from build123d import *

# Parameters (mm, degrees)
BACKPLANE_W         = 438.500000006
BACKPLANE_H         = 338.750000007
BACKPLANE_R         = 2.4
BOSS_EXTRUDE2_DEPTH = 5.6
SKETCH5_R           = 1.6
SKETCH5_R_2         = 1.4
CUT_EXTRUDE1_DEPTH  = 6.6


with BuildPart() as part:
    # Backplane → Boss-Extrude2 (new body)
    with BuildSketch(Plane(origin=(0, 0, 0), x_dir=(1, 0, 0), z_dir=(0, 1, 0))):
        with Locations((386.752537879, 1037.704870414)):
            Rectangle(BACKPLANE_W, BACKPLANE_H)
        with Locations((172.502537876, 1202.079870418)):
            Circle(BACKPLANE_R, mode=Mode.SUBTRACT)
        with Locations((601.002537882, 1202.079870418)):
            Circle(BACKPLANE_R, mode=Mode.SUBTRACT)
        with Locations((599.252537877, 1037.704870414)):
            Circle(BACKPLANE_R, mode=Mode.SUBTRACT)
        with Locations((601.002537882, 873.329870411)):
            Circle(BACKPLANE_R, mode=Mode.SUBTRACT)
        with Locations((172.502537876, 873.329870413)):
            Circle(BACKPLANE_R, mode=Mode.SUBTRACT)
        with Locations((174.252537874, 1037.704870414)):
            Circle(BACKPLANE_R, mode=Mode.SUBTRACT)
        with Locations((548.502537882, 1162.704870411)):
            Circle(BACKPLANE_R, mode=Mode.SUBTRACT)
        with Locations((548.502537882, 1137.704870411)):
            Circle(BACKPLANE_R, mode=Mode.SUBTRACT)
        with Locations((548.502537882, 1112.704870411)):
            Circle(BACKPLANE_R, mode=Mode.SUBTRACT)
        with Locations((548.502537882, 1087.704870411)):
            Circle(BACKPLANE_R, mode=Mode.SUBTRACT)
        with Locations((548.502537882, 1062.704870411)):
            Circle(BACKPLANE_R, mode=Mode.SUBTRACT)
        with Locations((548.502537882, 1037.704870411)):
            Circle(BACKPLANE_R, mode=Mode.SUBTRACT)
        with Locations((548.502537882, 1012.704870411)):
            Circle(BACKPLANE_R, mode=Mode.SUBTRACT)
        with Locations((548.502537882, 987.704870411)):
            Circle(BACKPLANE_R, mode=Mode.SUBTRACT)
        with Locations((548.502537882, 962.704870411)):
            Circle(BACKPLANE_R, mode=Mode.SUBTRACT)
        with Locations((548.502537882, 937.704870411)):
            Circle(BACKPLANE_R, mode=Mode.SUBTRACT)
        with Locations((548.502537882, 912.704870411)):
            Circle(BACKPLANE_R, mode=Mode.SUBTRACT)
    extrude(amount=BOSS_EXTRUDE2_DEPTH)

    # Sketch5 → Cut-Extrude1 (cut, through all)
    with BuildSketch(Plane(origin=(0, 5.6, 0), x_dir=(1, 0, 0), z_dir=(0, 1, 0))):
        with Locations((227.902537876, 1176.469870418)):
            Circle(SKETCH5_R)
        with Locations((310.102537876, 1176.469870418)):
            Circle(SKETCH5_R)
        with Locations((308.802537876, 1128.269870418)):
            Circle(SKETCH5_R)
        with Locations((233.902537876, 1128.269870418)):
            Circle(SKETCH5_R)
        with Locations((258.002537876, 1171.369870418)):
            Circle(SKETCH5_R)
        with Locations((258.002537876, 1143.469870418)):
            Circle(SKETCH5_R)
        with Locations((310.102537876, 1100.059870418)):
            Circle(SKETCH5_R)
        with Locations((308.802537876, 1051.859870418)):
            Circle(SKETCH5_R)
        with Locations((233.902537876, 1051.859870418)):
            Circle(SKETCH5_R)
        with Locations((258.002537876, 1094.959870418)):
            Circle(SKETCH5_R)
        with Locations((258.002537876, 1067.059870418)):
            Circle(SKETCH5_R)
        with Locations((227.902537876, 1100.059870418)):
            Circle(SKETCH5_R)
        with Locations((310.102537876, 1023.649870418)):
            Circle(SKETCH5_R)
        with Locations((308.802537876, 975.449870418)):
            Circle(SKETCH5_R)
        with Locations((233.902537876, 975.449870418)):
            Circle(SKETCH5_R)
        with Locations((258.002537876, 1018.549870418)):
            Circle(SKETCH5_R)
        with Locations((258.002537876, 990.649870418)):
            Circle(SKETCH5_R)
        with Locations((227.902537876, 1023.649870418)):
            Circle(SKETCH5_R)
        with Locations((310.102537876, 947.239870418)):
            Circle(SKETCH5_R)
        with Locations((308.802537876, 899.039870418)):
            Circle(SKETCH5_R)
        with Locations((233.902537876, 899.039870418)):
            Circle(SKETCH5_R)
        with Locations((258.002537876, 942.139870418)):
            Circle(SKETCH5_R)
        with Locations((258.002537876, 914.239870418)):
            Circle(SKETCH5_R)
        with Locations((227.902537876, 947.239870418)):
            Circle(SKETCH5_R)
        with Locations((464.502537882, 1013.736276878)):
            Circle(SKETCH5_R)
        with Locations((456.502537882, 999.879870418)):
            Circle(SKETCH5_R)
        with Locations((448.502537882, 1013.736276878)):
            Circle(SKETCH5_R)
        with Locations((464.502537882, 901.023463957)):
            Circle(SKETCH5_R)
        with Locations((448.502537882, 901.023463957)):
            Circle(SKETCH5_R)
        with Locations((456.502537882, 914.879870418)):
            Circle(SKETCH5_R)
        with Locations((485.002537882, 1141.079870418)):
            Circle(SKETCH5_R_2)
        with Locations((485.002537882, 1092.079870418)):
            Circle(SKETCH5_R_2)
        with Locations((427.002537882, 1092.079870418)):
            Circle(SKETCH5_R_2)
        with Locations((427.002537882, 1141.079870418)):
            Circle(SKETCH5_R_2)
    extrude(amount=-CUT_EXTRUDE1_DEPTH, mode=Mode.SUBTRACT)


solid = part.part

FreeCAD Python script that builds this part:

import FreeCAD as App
import Part
import Sketcher
from FreeCAD import Vector
Q = App.Units.Quantity

doc = App.newDocument("Part")
params = doc.addObject("Spreadsheet::Sheet", "Params")
for row, (alias, value) in enumerate([
    ("sketch1_diameter", "4.8 mm"),
    ("sketch1_width", "438.5 mm"),
    ("sketch1_height", "338.75 mm"),
    ("pad1_length", "5.6 mm"),
    ("sketch2_diameter", "3.2 mm"),
    ("sketch2_diameter2", "2.8 mm"),
], start=1):
    params.set(f"A{row}", alias)
    params.set(f"B{row}", "=" + value)
    params.setAlias(f"B{row}", alias)

body = doc.addObject("PartDesign::Body", "Body")

# Sketch on XZ plane
sketch1 = doc.addObject("Sketcher::SketchObject", "Sketch")
body.addObject(sketch1)
sketch1.AttachmentSupport = (doc.XZ_Plane, [""])
sketch1.MapMode = "FlatFace"
sketch1.addGeometry(Part.LineSegment(Vector(167.502538, -1207.07987, 0), Vector(167.502538, -868.32987, 0)), False)
sketch1.addGeometry(Part.LineSegment(Vector(167.502538, -868.32987, 0), Vector(606.002538, -868.32987, 0)), False)
sketch1.addGeometry(Part.LineSegment(Vector(606.002538, -868.32987, 0), Vector(606.002538, -1207.07987, 0)), False)
sketch1.addGeometry(Part.LineSegment(Vector(606.002538, -1207.07987, 0), Vector(167.502538, -1207.07987, 0)), False)
sketch1.addGeometry(Part.Circle(Vector(172.502538, -873.32987, 0), Vector(0, 0, 1), 2.4), False)
sketch1.addGeometry(Part.Circle(Vector(174.252538, -1037.70487, 0), Vector(0, 0, 1), 2.4), False)
sketch1.addGeometry(Part.Circle(Vector(601.002538, -873.32987, 0), Vector(0, 0, 1), 2.4), False)
sketch1.addGeometry(Part.Circle(Vector(548.502538, -912.70487, 0), Vector(0, 0, 1), 2.4), False)
sketch1.addGeometry(Part.Circle(Vector(548.502538, -937.70487, 0), Vector(0, 0, 1), 2.4), False)
sketch1.addGeometry(Part.Circle(Vector(548.502538, -962.70487, 0), Vector(0, 0, 1), 2.4), False)
sketch1.addGeometry(Part.Circle(Vector(548.502538, -987.70487, 0), Vector(0, 0, 1), 2.4), False)
sketch1.addGeometry(Part.Circle(Vector(548.502538, -1012.70487, 0), Vector(0, 0, 1), 2.4), False)
sketch1.addGeometry(Part.Circle(Vector(548.502538, -1037.70487, 0), Vector(0, 0, 1), 2.4), False)
sketch1.addGeometry(Part.Circle(Vector(599.252538, -1037.70487, 0), Vector(0, 0, 1), 2.4), False)
sketch1.addGeometry(Part.Circle(Vector(172.502538, -1202.07987, 0), Vector(0, 0, 1), 2.4), False)
sketch1.addGeometry(Part.Circle(Vector(548.502538, -1062.70487, 0), Vector(0, 0, 1), 2.4), False)
sketch1.addGeometry(Part.Circle(Vector(548.502538, -1087.70487, 0), Vector(0, 0, 1), 2.4), False)
sketch1.addGeometry(Part.Circle(Vector(548.502538, -1112.70487, 0), Vector(0, 0, 1), 2.4), False)
sketch1.addGeometry(Part.Circle(Vector(548.502538, -1137.70487, 0), Vector(0, 0, 1), 2.4), False)
sketch1.addGeometry(Part.Circle(Vector(548.502538, -1162.70487, 0), Vector(0, 0, 1), 2.4), False)
sketch1.addGeometry(Part.Circle(Vector(601.002538, -1202.07987, 0), Vector(0, 0, 1), 2.4), False)
sketch1.addConstraint(Sketcher.Constraint("Coincident", 0, 2, 1, 1))
sketch1.addConstraint(Sketcher.Constraint("Coincident", 1, 2, 2, 1))
sketch1.addConstraint(Sketcher.Constraint("Coincident", 2, 2, 3, 1))
sketch1.addConstraint(Sketcher.Constraint("Coincident", 3, 2, 0, 1))
sketch1.addConstraint(Sketcher.Constraint("Vertical", 0))
sketch1.addConstraint(Sketcher.Constraint("Horizontal", 1))
sketch1.addConstraint(Sketcher.Constraint("Vertical", 2))
sketch1.addConstraint(Sketcher.Constraint("Horizontal", 3))
sketch1.addConstraint(Sketcher.Constraint("Equal", 4, 5))
sketch1.addConstraint(Sketcher.Constraint("Equal", 5, 6))
sketch1.addConstraint(Sketcher.Constraint("Equal", 6, 7))
sketch1.addConstraint(Sketcher.Constraint("Equal", 7, 8))
sketch1.addConstraint(Sketcher.Constraint("Equal", 8, 9))
sketch1.addConstraint(Sketcher.Constraint("Equal", 9, 10))
sketch1.addConstraint(Sketcher.Constraint("Equal", 10, 11))
sketch1.addConstraint(Sketcher.Constraint("Equal", 11, 12))
sketch1.addConstraint(Sketcher.Constraint("Equal", 12, 13))
sketch1.addConstraint(Sketcher.Constraint("Equal", 13, 14))
sketch1.addConstraint(Sketcher.Constraint("Equal", 14, 15))
sketch1.addConstraint(Sketcher.Constraint("Equal", 15, 16))
sketch1.addConstraint(Sketcher.Constraint("Equal", 16, 17))
sketch1.addConstraint(Sketcher.Constraint("Equal", 17, 18))
sketch1.addConstraint(Sketcher.Constraint("Equal", 18, 19))
sketch1.addConstraint(Sketcher.Constraint("Equal", 19, 20))
sketch1.addConstraint(Sketcher.Constraint("Horizontal", 4, 3, 6, 3))
sketch1.addConstraint(Sketcher.Constraint("Horizontal", 5, 3, 12, 3))
sketch1.addConstraint(Sketcher.Constraint("Horizontal", 12, 3, 13, 3))
sketch1.addConstraint(Sketcher.Constraint("Horizontal", 14, 3, 20, 3))
sketch1.addConstraint(Sketcher.Constraint("Vertical", 7, 3, 8, 3))
sketch1.addConstraint(Sketcher.Constraint("Vertical", 8, 3, 9, 3))
sketch1.addConstraint(Sketcher.Constraint("Vertical", 9, 3, 10, 3))
sketch1.addConstraint(Sketcher.Constraint("Vertical", 10, 3, 11, 3))
sketch1.addConstraint(Sketcher.Constraint("Vertical", 11, 3, 12, 3))
sketch1.addConstraint(Sketcher.Constraint("Vertical", 4, 3, 14, 3))
sketch1.addConstraint(Sketcher.Constraint("Vertical", 12, 3, 15, 3))
sketch1.addConstraint(Sketcher.Constraint("Vertical", 15, 3, 16, 3))
sketch1.addConstraint(Sketcher.Constraint("Vertical", 16, 3, 17, 3))
sketch1.addConstraint(Sketcher.Constraint("Vertical", 17, 3, 18, 3))
sketch1.addConstraint(Sketcher.Constraint("Vertical", 18, 3, 19, 3))
sketch1.addConstraint(Sketcher.Constraint("Vertical", 6, 3, 20, 3))
sketch1.addConstraint(Sketcher.Constraint("Diameter", 4, Q("4.8 mm")))
sketch1.addConstraint(Sketcher.Constraint("DistanceX", 1, 1, 1, 2, Q("438.5 mm")))
sketch1.addConstraint(Sketcher.Constraint("DistanceX", 4, 3, 7, 3, Q("376 mm")))
sketch1.addConstraint(Sketcher.Constraint("DistanceY", 5, 3, 7, 3, Q("125 mm")))
sketch1.addConstraint(Sketcher.Constraint("DistanceY", 8, 3, 7, 3, Q("25 mm")))
sketch1.addConstraint(Sketcher.Constraint("DistanceY", 9, 3, 8, 3, Q("25 mm")))
sketch1.addConstraint(Sketcher.Constraint("DistanceY", 10, 3, 9, 3, Q("25 mm")))
sketch1.addConstraint(Sketcher.Constraint("DistanceY", 11, 3, 10, 3, Q("25 mm")))
sketch1.addConstraint(Sketcher.Constraint("DistanceY", 15, 3, 12, 3, Q("25 mm")))
sketch1.addConstraint(Sketcher.Constraint("DistanceY", 16, 3, 15, 3, Q("25 mm")))
sketch1.addConstraint(Sketcher.Constraint("DistanceY", 17, 3, 16, 3, Q("25 mm")))
sketch1.addConstraint(Sketcher.Constraint("DistanceY", 18, 3, 17, 3, Q("25 mm")))
sketch1.addConstraint(Sketcher.Constraint("DistanceY", 19, 3, 18, 3, Q("25 mm")))
sketch1.addConstraint(Sketcher.Constraint("DistanceX", 0, 2, 4, 3, Q("5 mm")))
sketch1.addConstraint(Sketcher.Constraint("DistanceY", 4, 3, 0, 2, Q("5 mm")))
sketch1.addConstraint(Sketcher.Constraint("DistanceX", 6, 3, 1, 2, Q("5 mm")))
sketch1.addConstraint(Sketcher.Constraint("DistanceY", 2, 2, 20, 3, Q("5 mm")))
sketch1.addConstraint(Sketcher.Constraint("DistanceY", 0, 1, 0, 2, Q("338.75 mm")))
sketch1.addConstraint(Sketcher.Constraint("DistanceX", 4, 3, 5, 3, Q("1.75 mm")))
sketch1.addConstraint(Sketcher.Constraint("DistanceX", 12, 3, 13, 3, Q("50.75 mm")))
sketch1.addConstraint(Sketcher.Constraint("DistanceY", 5, 3, 4, 3, Q("164.375 mm")))
sketch1.addConstraint(Sketcher.Constraint("DistanceY", 4, 3, -1, 1, Q("873.32987 mm")))
sketch1.addConstraint(Sketcher.Constraint("DistanceX", -1, 1, 4, 3, Q("172.502538 mm")))
sketch1.setExpression("Constraints[40]", "Params.sketch1_diameter")
sketch1.setExpression("Constraints[41]", "Params.sketch1_width")
sketch1.setExpression("Constraints[57]", "Params.sketch1_height")
pad1 = doc.addObject("PartDesign::Pad", "Pad")
body.addObject(pad1)
pad1.Profile = sketch1
pad1.setExpression("Length", "Params.pad1_length")
pad1.Reversed = True

# Sketch on XZ plane
sketch2 = doc.addObject("Sketcher::SketchObject", "Sketch001")
body.addObject(sketch2)
sketch2.AttachmentSupport = (doc.XZ_Plane, [""])
sketch2.MapMode = "FlatFace"
sketch2.AttachmentOffset = App.Placement(Vector(0, 0, -5.6), App.Rotation())
sketch2.addGeometry(Part.Circle(Vector(227.902538, -1176.46987, 0), Vector(0, 0, 1), 1.6), False)
sketch2.addGeometry(Part.Circle(Vector(310.102538, -1176.46987, 0), Vector(0, 0, 1), 1.6), False)
sketch2.addGeometry(Part.Circle(Vector(308.802538, -1128.26987, 0), Vector(0, 0, 1), 1.6), False)
sketch2.addGeometry(Part.Circle(Vector(233.902538, -1128.26987, 0), Vector(0, 0, 1), 1.6), False)
sketch2.addGeometry(Part.Circle(Vector(258.002538, -1171.36987, 0), Vector(0, 0, 1), 1.6), False)
sketch2.addGeometry(Part.Circle(Vector(258.002538, -1143.46987, 0), Vector(0, 0, 1), 1.6), False)
sketch2.addGeometry(Part.Circle(Vector(310.102538, -1100.05987, 0), Vector(0, 0, 1), 1.6), False)
sketch2.addGeometry(Part.Circle(Vector(308.802538, -1051.85987, 0), Vector(0, 0, 1), 1.6), False)
sketch2.addGeometry(Part.Circle(Vector(233.902538, -1051.85987, 0), Vector(0, 0, 1), 1.6), False)
sketch2.addGeometry(Part.Circle(Vector(258.002538, -1094.95987, 0), Vector(0, 0, 1), 1.6), False)
sketch2.addGeometry(Part.Circle(Vector(258.002538, -1067.05987, 0), Vector(0, 0, 1), 1.6), False)
sketch2.addGeometry(Part.Circle(Vector(227.902538, -1100.05987, 0), Vector(0, 0, 1), 1.6), False)
sketch2.addGeometry(Part.Circle(Vector(310.102538, -1023.64987, 0), Vector(0, 0, 1), 1.6), False)
sketch2.addGeometry(Part.Circle(Vector(308.802538, -975.44987, 0), Vector(0, 0, 1), 1.6), False)
sketch2.addGeometry(Part.Circle(Vector(233.902538, -975.44987, 0), Vector(0, 0, 1), 1.6), False)
sketch2.addGeometry(Part.Circle(Vector(258.002538, -1018.54987, 0), Vector(0, 0, 1), 1.6), False)
sketch2.addGeometry(Part.Circle(Vector(258.002538, -990.64987, 0), Vector(0, 0, 1), 1.6), False)
sketch2.addGeometry(Part.Circle(Vector(227.902538, -1023.64987, 0), Vector(0, 0, 1), 1.6), False)
sketch2.addGeometry(Part.Circle(Vector(310.102538, -947.23987, 0), Vector(0, 0, 1), 1.6), False)
sketch2.addGeometry(Part.Circle(Vector(308.802538, -899.03987, 0), Vector(0, 0, 1), 1.6), False)
sketch2.addGeometry(Part.Circle(Vector(233.902538, -899.03987, 0), Vector(0, 0, 1), 1.6), False)
sketch2.addGeometry(Part.Circle(Vector(258.002538, -942.13987, 0), Vector(0, 0, 1), 1.6), False)
sketch2.addGeometry(Part.Circle(Vector(258.002538, -914.23987, 0), Vector(0, 0, 1), 1.6), False)
sketch2.addGeometry(Part.Circle(Vector(227.902538, -947.23987, 0), Vector(0, 0, 1), 1.6), False)
sketch2.addGeometry(Part.Circle(Vector(464.502538, -1013.736277, 0), Vector(0, 0, 1), 1.6), False)
sketch2.addGeometry(Part.Circle(Vector(456.502538, -999.87987, 0), Vector(0, 0, 1), 1.6), False)
sketch2.addGeometry(Part.Circle(Vector(448.502538, -1013.736277, 0), Vector(0, 0, 1), 1.6), False)
sketch2.addGeometry(Part.Circle(Vector(464.502538, -901.023464, 0), Vector(0, 0, 1), 1.6), False)
sketch2.addGeometry(Part.Circle(Vector(448.502538, -901.023464, 0), Vector(0, 0, 1), 1.6), False)
sketch2.addGeometry(Part.Circle(Vector(456.502538, -914.87987, 0), Vector(0, 0, 1), 1.6), False)
sketch2.addGeometry(Part.Circle(Vector(485.002538, -1141.07987, 0), Vector(0, 0, 1), 1.4), False)
sketch2.addGeometry(Part.Circle(Vector(485.002538, -1092.07987, 0), Vector(0, 0, 1), 1.4), False)
sketch2.addGeometry(Part.Circle(Vector(427.002538, -1092.07987, 0), Vector(0, 0, 1), 1.4), False)
sketch2.addGeometry(Part.Circle(Vector(427.002538, -1141.07987, 0), Vector(0, 0, 1), 1.4), False)
sketch2.addConstraint(Sketcher.Constraint("Equal", 0, 1))
sketch2.addConstraint(Sketcher.Constraint("Equal", 1, 2))
sketch2.addConstraint(Sketcher.Constraint("Equal", 2, 3))
sketch2.addConstraint(Sketcher.Constraint("Equal", 3, 4))
sketch2.addConstraint(Sketcher.Constraint("Equal", 4, 5))
sketch2.addConstraint(Sketcher.Constraint("Equal", 5, 6))
sketch2.addConstraint(Sketcher.Constraint("Equal", 6, 7))
sketch2.addConstraint(Sketcher.Constraint("Equal", 7, 8))
sketch2.addConstraint(Sketcher.Constraint("Equal", 8, 9))
sketch2.addConstraint(Sketcher.Constraint("Equal", 9, 10))
sketch2.addConstraint(Sketcher.Constraint("Equal", 10, 11))
sketch2.addConstraint(Sketcher.Constraint("Equal", 11, 12))
sketch2.addConstraint(Sketcher.Constraint("Equal", 12, 13))
sketch2.addConstraint(Sketcher.Constraint("Equal", 13, 14))
sketch2.addConstraint(Sketcher.Constraint("Equal", 14, 15))
sketch2.addConstraint(Sketcher.Constraint("Equal", 15, 16))
sketch2.addConstraint(Sketcher.Constraint("Equal", 16, 17))
sketch2.addConstraint(Sketcher.Constraint("Equal", 17, 18))
sketch2.addConstraint(Sketcher.Constraint("Equal", 18, 19))
sketch2.addConstraint(Sketcher.Constraint("Equal", 19, 20))
sketch2.addConstraint(Sketcher.Constraint("Equal", 20, 21))
sketch2.addConstraint(Sketcher.Constraint("Equal", 21, 22))
sketch2.addConstraint(Sketcher.Constraint("Equal", 22, 23))
sketch2.addConstraint(Sketcher.Constraint("Equal", 23, 24))
sketch2.addConstraint(Sketcher.Constraint("Equal", 24, 25))
sketch2.addConstraint(Sketcher.Constraint("Equal", 25, 26))
sketch2.addConstraint(Sketcher.Constraint("Equal", 26, 27))
sketch2.addConstraint(Sketcher.Constraint("Equal", 27, 28))
sketch2.addConstraint(Sketcher.Constraint("Equal", 28, 29))
sketch2.addConstraint(Sketcher.Constraint("Equal", 30, 31))
sketch2.addConstraint(Sketcher.Constraint("Equal", 31, 32))
sketch2.addConstraint(Sketcher.Constraint("Equal", 32, 33))
sketch2.addConstraint(Sketcher.Constraint("Horizontal", 0, 3, 1, 3))
sketch2.addConstraint(Sketcher.Constraint("Horizontal", 2, 3, 3, 3))
sketch2.addConstraint(Sketcher.Constraint("Horizontal", 7, 3, 8, 3))
sketch2.addConstraint(Sketcher.Constraint("Horizontal", 6, 3, 11, 3))
sketch2.addConstraint(Sketcher.Constraint("Horizontal", 13, 3, 14, 3))
sketch2.addConstraint(Sketcher.Constraint("Horizontal", 12, 3, 17, 3))
sketch2.addConstraint(Sketcher.Constraint("Horizontal", 19, 3, 20, 3))
sketch2.addConstraint(Sketcher.Constraint("Horizontal", 18, 3, 23, 3))
sketch2.addConstraint(Sketcher.Constraint("Horizontal", 24, 3, 26, 3))
sketch2.addConstraint(Sketcher.Constraint("Horizontal", 27, 3, 28, 3))
sketch2.addConstraint(Sketcher.Constraint("Horizontal", 31, 3, 32, 3))
sketch2.addConstraint(Sketcher.Constraint("Horizontal", 30, 3, 33, 3))
sketch2.addConstraint(Sketcher.Constraint("Vertical", 4, 3, 5, 3))
sketch2.addConstraint(Sketcher.Constraint("Vertical", 1, 3, 6, 3))
sketch2.addConstraint(Sketcher.Constraint("Vertical", 2, 3, 7, 3))
sketch2.addConstraint(Sketcher.Constraint("Vertical", 3, 3, 8, 3))
sketch2.addConstraint(Sketcher.Constraint("Vertical", 5, 3, 9, 3))
sketch2.addConstraint(Sketcher.Constraint("Vertical", 9, 3, 10, 3))
sketch2.addConstraint(Sketcher.Constraint("Vertical", 0, 3, 11, 3))
sketch2.addConstraint(Sketcher.Constraint("Vertical", 6, 3, 12, 3))
sketch2.addConstraint(Sketcher.Constraint("Vertical", 7, 3, 13, 3))
sketch2.addConstraint(Sketcher.Constraint("Vertical", 8, 3, 14, 3))
sketch2.addConstraint(Sketcher.Constraint("Vertical", 10, 3, 15, 3))
sketch2.addConstraint(Sketcher.Constraint("Vertical", 15, 3, 16, 3))
sketch2.addConstraint(Sketcher.Constraint("Vertical", 11, 3, 17, 3))
sketch2.addConstraint(Sketcher.Constraint("Vertical", 12, 3, 18, 3))
sketch2.addConstraint(Sketcher.Constraint("Vertical", 13, 3, 19, 3))
sketch2.addConstraint(Sketcher.Constraint("Vertical", 14, 3, 20, 3))
sketch2.addConstraint(Sketcher.Constraint("Vertical", 16, 3, 21, 3))
sketch2.addConstraint(Sketcher.Constraint("Vertical", 21, 3, 22, 3))
sketch2.addConstraint(Sketcher.Constraint("Vertical", 17, 3, 23, 3))
sketch2.addConstraint(Sketcher.Constraint("Vertical", 24, 3, 27, 3))
sketch2.addConstraint(Sketcher.Constraint("Vertical", 26, 3, 28, 3))
sketch2.addConstraint(Sketcher.Constraint("Vertical", 25, 3, 29, 3))
sketch2.addConstraint(Sketcher.Constraint("Vertical", 30, 3, 31, 3))
sketch2.addConstraint(Sketcher.Constraint("Vertical", 32, 3, 33, 3))
sketch2.addConstraint(Sketcher.Constraint("Diameter", 0, Q("3.2 mm")))
sketch2.addConstraint(Sketcher.Constraint("Diameter", 30, Q("2.8 mm")))
sketch2.addConstraint(Sketcher.Constraint("DistanceX", 0, 3, 3, 3, Q("6 mm")))
sketch2.addConstraint(Sketcher.Constraint("DistanceY", 0, 3, 5, 3, Q("33 mm")))
sketch2.addConstraint(Sketcher.Constraint("DistanceY", 6, 3, 10, 3, Q("33 mm")))
sketch2.addConstraint(Sketcher.Constraint("DistanceY", 12, 3, 16, 3, Q("33 mm")))
sketch2.addConstraint(Sketcher.Constraint("DistanceY", 18, 3, 22, 3, Q("33 mm")))
sketch2.addConstraint(Sketcher.Constraint("DistanceX", 25, 3, 24, 3, Q("8 mm")))
sketch2.addConstraint(Sketcher.Constraint("DistanceX", 26, 3, 25, 3, Q("8 mm")))
sketch2.addConstraint(Sketcher.Constraint("DistanceY", 25, 3, 29, 3, Q("85 mm")))
sketch2.addConstraint(Sketcher.Constraint("DistanceY", 30, 3, 31, 3, Q("49 mm")))
sketch2.addConstraint(Sketcher.Constraint("DistanceX", 32, 3, 31, 3, Q("58 mm")))
sketch2.addConstraint(Sketcher.Constraint("DistanceX", 0, 3, 1, 3, Q("82.2 mm")))
sketch2.addConstraint(Sketcher.Constraint("DistanceX", 2, 3, 1, 3, Q("1.3 mm")))
sketch2.addConstraint(Sketcher.Constraint("DistanceY", 1, 3, 2, 3, Q("48.2 mm")))
sketch2.addConstraint(Sketcher.Constraint("DistanceX", 0, 3, 4, 3, Q("30.1 mm")))
sketch2.addConstraint(Sketcher.Constraint("DistanceY", 0, 3, 4, 3, Q("5.1 mm")))
sketch2.addConstraint(Sketcher.Constraint("DistanceY", 6, 3, 7, 3, Q("48.2 mm")))
sketch2.addConstraint(Sketcher.Constraint("DistanceY", 9, 3, 8, 3, Q("43.1 mm")))
sketch2.addConstraint(Sketcher.Constraint("DistanceY", 12, 3, 13, 3, Q("48.2 mm")))
sketch2.addConstraint(Sketcher.Constraint("DistanceY", 15, 3, 14, 3, Q("43.1 mm")))
sketch2.addConstraint(Sketcher.Constraint("DistanceY", 18, 3, 19, 3, Q("48.2 mm")))
sketch2.addConstraint(Sketcher.Constraint("DistanceY", 21, 3, 20, 3, Q("43.1 mm")))
sketch2.addConstraint(Sketcher.Constraint("DistanceX", 12, 3, 24, 3, Q("154.4 mm")))
sketch2.addConstraint(Sketcher.Constraint("DistanceX", 24, 3, 30, 3, Q("20.5 mm")))
sketch2.addConstraint(Sketcher.Constraint("DistanceY", 30, 3, 25, 3, Q("141.2 mm")))
sketch2.addConstraint(Sketcher.Constraint("DistanceY", 2, 3, 6, 3, Q("28.21 mm")))
sketch2.addConstraint(Sketcher.Constraint("DistanceY", 7, 3, 12, 3, Q("28.21 mm")))
sketch2.addConstraint(Sketcher.Constraint("DistanceY", 13, 3, 18, 3, Q("28.21 mm")))
sketch2.addConstraint(Sketcher.Constraint("DistanceY", 12, 3, 25, 3, Q("23.77 mm")))
sketch2.addConstraint(Sketcher.Constraint("DistanceY", 0, 3, -1, 1, Q("1176.46987 mm")))
sketch2.addConstraint(Sketcher.Constraint("DistanceX", -1, 1, 0, 3, Q("227.902538 mm")))
sketch2.addConstraint(Sketcher.Constraint("DistanceY", 24, 3, -1, 1, Q("1013.736277 mm")))
sketch2.addConstraint(Sketcher.Constraint("DistanceY", 27, 3, -1, 1, Q("901.023464 mm")))
sketch2.setExpression("Constraints[68]", "Params.sketch2_diameter")
sketch2.setExpression("Constraints[69]", "Params.sketch2_diameter2")
pocket1 = doc.addObject("PartDesign::Pocket", "Pocket")
body.addObject(pocket1)
pocket1.Profile = sketch2
pocket1.Type = "ThroughAll"
pocket1.Reversed = True

doc.recompute()
